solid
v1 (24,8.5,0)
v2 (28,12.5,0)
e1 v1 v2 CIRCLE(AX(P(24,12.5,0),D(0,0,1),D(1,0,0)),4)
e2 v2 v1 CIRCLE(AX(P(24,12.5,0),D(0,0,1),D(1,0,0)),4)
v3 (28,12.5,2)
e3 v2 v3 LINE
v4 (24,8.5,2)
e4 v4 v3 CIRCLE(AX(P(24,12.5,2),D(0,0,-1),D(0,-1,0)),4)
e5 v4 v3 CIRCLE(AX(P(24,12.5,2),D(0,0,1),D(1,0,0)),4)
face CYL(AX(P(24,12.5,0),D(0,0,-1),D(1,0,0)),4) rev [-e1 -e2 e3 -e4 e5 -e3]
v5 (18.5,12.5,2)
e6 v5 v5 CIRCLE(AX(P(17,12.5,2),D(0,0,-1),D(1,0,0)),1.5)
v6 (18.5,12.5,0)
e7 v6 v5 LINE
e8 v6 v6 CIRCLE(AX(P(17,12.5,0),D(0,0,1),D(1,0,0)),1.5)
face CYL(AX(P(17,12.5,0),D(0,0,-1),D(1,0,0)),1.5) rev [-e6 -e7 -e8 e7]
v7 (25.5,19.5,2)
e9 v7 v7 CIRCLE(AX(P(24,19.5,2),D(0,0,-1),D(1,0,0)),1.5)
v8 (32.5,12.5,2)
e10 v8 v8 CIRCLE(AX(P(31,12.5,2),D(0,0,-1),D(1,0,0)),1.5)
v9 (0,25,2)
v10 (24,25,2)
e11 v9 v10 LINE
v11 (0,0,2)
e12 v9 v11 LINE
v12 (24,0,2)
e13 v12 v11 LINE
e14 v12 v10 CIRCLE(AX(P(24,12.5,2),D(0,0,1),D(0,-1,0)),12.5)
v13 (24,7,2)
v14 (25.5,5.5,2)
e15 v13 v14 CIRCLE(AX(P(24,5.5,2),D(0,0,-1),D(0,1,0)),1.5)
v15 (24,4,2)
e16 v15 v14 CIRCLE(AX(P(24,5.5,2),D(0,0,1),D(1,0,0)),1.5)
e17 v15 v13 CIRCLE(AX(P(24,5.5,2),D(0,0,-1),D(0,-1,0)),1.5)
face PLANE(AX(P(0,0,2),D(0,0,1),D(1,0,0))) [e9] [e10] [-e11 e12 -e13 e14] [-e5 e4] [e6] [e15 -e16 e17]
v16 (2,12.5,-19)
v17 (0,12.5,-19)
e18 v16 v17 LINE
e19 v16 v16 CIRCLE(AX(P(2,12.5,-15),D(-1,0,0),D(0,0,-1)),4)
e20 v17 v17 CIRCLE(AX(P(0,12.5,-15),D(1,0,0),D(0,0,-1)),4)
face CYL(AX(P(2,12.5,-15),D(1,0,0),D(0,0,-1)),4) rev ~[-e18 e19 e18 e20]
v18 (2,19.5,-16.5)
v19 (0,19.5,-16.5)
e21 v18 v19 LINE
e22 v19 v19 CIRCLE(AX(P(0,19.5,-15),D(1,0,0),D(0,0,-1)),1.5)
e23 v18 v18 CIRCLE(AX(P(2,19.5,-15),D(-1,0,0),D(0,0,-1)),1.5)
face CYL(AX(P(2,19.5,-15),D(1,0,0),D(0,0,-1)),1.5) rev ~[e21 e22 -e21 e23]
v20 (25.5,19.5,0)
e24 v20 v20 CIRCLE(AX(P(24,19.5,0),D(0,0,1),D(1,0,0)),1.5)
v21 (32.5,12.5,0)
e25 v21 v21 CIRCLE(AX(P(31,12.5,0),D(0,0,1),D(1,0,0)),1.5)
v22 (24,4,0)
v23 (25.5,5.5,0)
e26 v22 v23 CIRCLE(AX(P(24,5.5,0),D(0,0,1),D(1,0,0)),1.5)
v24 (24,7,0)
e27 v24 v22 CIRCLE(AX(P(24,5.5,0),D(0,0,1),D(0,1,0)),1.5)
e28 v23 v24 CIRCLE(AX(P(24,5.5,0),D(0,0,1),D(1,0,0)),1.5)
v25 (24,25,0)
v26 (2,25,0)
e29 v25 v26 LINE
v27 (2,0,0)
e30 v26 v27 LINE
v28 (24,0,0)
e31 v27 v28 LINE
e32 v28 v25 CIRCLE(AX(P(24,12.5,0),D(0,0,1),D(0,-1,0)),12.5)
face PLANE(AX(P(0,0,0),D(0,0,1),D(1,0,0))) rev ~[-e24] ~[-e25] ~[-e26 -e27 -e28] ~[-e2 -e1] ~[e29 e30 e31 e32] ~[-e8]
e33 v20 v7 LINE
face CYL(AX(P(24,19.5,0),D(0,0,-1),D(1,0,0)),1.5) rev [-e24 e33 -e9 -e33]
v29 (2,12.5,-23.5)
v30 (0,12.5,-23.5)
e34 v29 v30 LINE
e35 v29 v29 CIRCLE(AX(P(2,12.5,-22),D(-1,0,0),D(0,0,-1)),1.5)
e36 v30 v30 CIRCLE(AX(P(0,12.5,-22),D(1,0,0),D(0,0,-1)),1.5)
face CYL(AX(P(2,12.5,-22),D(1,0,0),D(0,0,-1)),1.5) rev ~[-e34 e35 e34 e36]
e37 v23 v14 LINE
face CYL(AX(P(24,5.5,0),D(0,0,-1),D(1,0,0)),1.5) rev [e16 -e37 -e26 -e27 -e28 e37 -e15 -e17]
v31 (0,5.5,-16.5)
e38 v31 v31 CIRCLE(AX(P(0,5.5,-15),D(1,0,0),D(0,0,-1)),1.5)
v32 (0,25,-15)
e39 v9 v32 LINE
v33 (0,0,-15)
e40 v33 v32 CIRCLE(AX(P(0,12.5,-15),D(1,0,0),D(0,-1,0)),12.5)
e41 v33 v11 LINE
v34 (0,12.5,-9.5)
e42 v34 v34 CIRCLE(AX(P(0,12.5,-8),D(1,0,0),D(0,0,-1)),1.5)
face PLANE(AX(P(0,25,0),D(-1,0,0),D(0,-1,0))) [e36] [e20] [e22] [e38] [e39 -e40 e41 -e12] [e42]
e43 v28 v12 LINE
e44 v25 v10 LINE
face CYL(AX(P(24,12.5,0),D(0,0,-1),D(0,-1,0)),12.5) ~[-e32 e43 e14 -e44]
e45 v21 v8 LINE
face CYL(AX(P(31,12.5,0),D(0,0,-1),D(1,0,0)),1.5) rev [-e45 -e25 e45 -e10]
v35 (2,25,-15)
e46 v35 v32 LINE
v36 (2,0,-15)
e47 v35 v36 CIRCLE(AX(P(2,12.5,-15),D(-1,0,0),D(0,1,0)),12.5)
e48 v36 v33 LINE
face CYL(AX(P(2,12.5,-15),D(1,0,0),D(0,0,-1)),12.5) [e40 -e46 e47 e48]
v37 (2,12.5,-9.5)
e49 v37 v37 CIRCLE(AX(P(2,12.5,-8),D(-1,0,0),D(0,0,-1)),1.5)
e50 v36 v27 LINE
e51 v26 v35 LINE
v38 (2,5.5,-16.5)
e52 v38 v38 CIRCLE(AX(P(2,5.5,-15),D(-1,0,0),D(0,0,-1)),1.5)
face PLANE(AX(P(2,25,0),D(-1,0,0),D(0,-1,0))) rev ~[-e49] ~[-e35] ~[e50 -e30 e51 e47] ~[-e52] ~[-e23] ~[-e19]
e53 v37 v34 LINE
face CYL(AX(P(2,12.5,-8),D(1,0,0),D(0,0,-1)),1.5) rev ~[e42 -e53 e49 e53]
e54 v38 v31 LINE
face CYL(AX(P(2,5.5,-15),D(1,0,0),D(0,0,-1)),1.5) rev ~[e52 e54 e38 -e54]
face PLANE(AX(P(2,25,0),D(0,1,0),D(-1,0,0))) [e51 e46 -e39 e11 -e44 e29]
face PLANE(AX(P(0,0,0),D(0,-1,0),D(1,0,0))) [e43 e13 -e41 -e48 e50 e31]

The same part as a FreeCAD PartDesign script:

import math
import FreeCAD as App
import Part
import Sketcher
from FreeCAD import Vector


def add_polygon(sketch, points):
    """Adds a closed chain of lines whose ends are joined by coincident constraints."""
    first, n = sketch.GeometryCount, len(points)
    for a, b in zip(points, points[1:] + points[:1]):
        sketch.addGeometry(Part.LineSegment(App.Vector(*a, 0), App.Vector(*b, 0)), False)
    for i in range(n):
        sketch.addConstraint(Sketcher.Constraint("Coincident", first + i, 2, first + (i + 1) % n, 1))

doc = App.newDocument("Part")
body = doc.addObject("PartDesign::Body", "Body")

# Sketch on XY plane
sketch1 = body.newObject("Sketcher::SketchObject", "Sketch")
sketch1.AttachmentSupport = (doc.getObject("XY_Plane"), [""])
sketch1.MapMode = "FlatFace"
sketch1.addGeometry([
    Part.LineSegment(Vector(0, 25, 0), Vector(0, 0, 0)),  # 0
    Part.LineSegment(Vector(0, 0, 0), Vector(24, 0, 0)),  # 1
    Part.ArcOfCircle(Part.Circle(Vector(24, 12.5, 0), Vector(0, 0, 1), 12.5), math.radians(-90), math.radians(90)),  # 2
    Part.LineSegment(Vector(24, 25, 0), Vector(0, 25, 0)),  # 3
    Part.ArcOfCircle(Part.Circle(Vector(24, 5.5, 0), Vector(0, 0, 1), 1.5), math.radians(90), math.radians(270)),  # 4
    Part.ArcOfCircle(Part.Circle(Vector(24, 5.5, 0), Vector(0, 0, 1), 1.5), math.radians(-90), math.radians(90)),  # 5
    Part.Circle(Vector(31, 12.5, 0), Vector(0, 0, 1), 1.5),  # 6
    Part.Circle(Vector(24, 19.5, 0), Vector(0, 0, 1), 1.5),  # 7
    Part.Circle(Vector(17, 12.5, 0), Vector(0, 0, 1), 1.5),  # 8
    Part.Circle(Vector(24, 12.5, 0), Vector(0, 0, 1), 4),  # 9
], False)
sketch1.addConstraint([
    Sketcher.Constraint("Coincident", 0, 2, 1, 1),
    Sketcher.Constraint("Tangent", 1, 2, 2, 1),
    Sketcher.Constraint("Tangent", 2, 2, 3, 1),
    Sketcher.Constraint("Coincident", 3, 2, 0, 1),
    Sketcher.Constraint("Tangent", 4, 1, 5, 2),
    Sketcher.Constraint("Coincident", 5, 1, 4, 2),
    Sketcher.Constraint("Vertical", 0),
    Sketcher.Constraint("Horizontal", 1),
    Sketcher.Constraint("Horizontal", 3),
    Sketcher.Constraint("Coincident", 0, 2, -1, 1),
    Sketcher.Constraint("Coincident", 9, 3, 2, 3),
    Sketcher.Constraint("Equal", 5, 6),
    Sketcher.Constraint("Equal", 6, 7),
    Sketcher.Constraint("Equal", 7, 8),
    Sketcher.Constraint("Horizontal", 2, 3, 6, 3),
    Sketcher.Constraint("Horizontal", 6, 3, 8, 3),
    Sketcher.Constraint("Vertical", 2, 3, 4, 3),
    Sketcher.Constraint("Vertical", 5, 3, 7, 3),
    Sketcher.Constraint("Vertical", 2, 2, 4, 1),
    Sketcher.Constraint("Vertical", 4, 1, 5, 1),
    Sketcher.Constraint("Diameter", 6, 3.0),
    Sketcher.Constraint("Diameter", 9, 8.0),
    Sketcher.Constraint("Radius", 2, 12.5),
    Sketcher.Constraint("DistanceX", 1, 1, 1, 2, 24.0),
    Sketcher.Constraint("DistanceY", 4, 3, 7, 3, 14.0),
    Sketcher.Constraint("DistanceX", 8, 3, 6, 3, 14.0),
    Sketcher.Constraint("DistanceX", -1, 1, 6, 3, 31.0),
    Sketcher.Constraint("DistanceY", -1, 1, 4, 1, 7.0),
])
pad1 = body.newObject("PartDesign::Pad", "Pad")
pad1.Profile = sketch1
pad1.Length = 2

# Sketch on XY plane
sketch2 = body.newObject("Sketcher::SketchObject", "Sketch001")
sketch2.AttachmentSupport = (doc.getObject("XY_Plane"), [""])
sketch2.MapMode = "FlatFace"
add_polygon(sketch2, [(0, 25), (0, 0), (2, 0), (2, 25)])  # lines 0-3
sketch2.addConstraint([
    Sketcher.Constraint("Vertical", 0),
    Sketcher.Constraint("Horizontal", 1),
    Sketcher.Constraint("Vertical", 2),
    Sketcher.Constraint("Horizontal", 3),
    Sketcher.Constraint("Coincident", 0, 2, -1, 1),
    Sketcher.Constraint("DistanceX", 1, 1, 1, 2, 2.0),
    Sketcher.Constraint("DistanceY", 0, 2, 0, 1, 25.0),
])
pad2 = body.newObject("PartDesign::Pad", "Pad001")
pad2.Profile = sketch2
pad2.Length = 1
pad2.Reversed = True

# Sketch on YZ plane
sketch3 = body.newObject("Sketcher::SketchObject", "Sketch002")
sketch3.AttachmentSupport = (doc.getObject("YZ_Plane"), [""])
sketch3.MapMode = "FlatFace"
sketch3.AttachmentOffset = App.Placement(Vector(0, 0, 2), App.Rotation())
sketch3.addGeometry([
    Part.LineSegment(Vector(25, -15, 0), Vector(25, 0, 0)),  # 0
    Part.LineSegment(Vector(25, 0, 0), Vector(0, 0, 0)),  # 1
    Part.LineSegment(Vector(0, 0, 0), Vector(0, -15, 0)),  # 2
    Part.ArcOfCircle(Part.Circle(Vector(12.5, -15, 0), Vector(0, 0, 1), 12.5), math.radians(180), math.radians(360)),  # 3
    Part.Circle(Vector(19.5, -15, 0), Vector(0, 0, 1), 1.5),  # 4
    Part.Circle(Vector(12.5, -8, 0), Vector(0, 0, 1), 1.5),  # 5
    Part.Circle(Vector(5.5, -15, 0), Vector(0, 0, 1), 1.5),  # 6
    Part.Circle(Vector(12.5, -22, 0), Vector(0, 0, 1), 1.5),  # 7
    Part.Circle(Vector(12.5, -15, 0), Vector(0, 0, 1), 4),  # 8
], False)
sketch3.addConstraint([
    Sketcher.Constraint("Coincident", 0, 2, 1, 1),
    Sketcher.Constraint("Coincident", 1, 2, 2, 1),
    Sketcher.Constraint("Tangent", 2, 2, 3, 1),
    Sketcher.Constraint("Tangent", 3, 2, 0, 1),
    Sketcher.Constraint("Vertical", 0),
    Sketcher.Constraint("Horizontal", 1),
    Sketcher.Constraint("Vertical", 2),
    Sketcher.Constraint("Coincident", 1, 2, -1, 1),
    Sketcher.Constraint("Coincident", 8, 3, 3, 3),
    Sketcher.Constraint("Equal", 4, 5),
    Sketcher.Constraint("Equal", 5, 6),
    Sketcher.Constraint("Equal", 6, 7),
    Sketcher.Constraint("Horizontal", 3, 3, 4, 3),
    Sketcher.Constraint("Horizontal", 4, 3, 6, 3),
    Sketcher.Constraint("Vertical", 3, 3, 5, 3),
    Sketcher.Constraint("Vertical", 5, 3, 7, 3),
    Sketcher.Constraint("Diameter", 4, 3.0),
    Sketcher.Constraint("Diameter", 8, 8.0),
    Sketcher.Constraint("Radius", 3, 12.5),
    Sketcher.Constraint("DistanceY", 0, 1, 0, 2, 15.0),
    Sketcher.Constraint("DistanceY", 5, 3, -1, 1, 8.0),
    Sketcher.Constraint("DistanceX", 6, 3, 4, 3, 14.0),
    Sketcher.Constraint("DistanceY", 7, 3, 5, 3, 14.0),
    Sketcher.Constraint("DistanceX", 3, 3, 4, 3, 7.0),
])
pad3 = body.newObject("PartDesign::Pad", "Pad002")
pad3.Profile = sketch3
pad3.Length = 2
pad3.Reversed = True

doc.recompute()
